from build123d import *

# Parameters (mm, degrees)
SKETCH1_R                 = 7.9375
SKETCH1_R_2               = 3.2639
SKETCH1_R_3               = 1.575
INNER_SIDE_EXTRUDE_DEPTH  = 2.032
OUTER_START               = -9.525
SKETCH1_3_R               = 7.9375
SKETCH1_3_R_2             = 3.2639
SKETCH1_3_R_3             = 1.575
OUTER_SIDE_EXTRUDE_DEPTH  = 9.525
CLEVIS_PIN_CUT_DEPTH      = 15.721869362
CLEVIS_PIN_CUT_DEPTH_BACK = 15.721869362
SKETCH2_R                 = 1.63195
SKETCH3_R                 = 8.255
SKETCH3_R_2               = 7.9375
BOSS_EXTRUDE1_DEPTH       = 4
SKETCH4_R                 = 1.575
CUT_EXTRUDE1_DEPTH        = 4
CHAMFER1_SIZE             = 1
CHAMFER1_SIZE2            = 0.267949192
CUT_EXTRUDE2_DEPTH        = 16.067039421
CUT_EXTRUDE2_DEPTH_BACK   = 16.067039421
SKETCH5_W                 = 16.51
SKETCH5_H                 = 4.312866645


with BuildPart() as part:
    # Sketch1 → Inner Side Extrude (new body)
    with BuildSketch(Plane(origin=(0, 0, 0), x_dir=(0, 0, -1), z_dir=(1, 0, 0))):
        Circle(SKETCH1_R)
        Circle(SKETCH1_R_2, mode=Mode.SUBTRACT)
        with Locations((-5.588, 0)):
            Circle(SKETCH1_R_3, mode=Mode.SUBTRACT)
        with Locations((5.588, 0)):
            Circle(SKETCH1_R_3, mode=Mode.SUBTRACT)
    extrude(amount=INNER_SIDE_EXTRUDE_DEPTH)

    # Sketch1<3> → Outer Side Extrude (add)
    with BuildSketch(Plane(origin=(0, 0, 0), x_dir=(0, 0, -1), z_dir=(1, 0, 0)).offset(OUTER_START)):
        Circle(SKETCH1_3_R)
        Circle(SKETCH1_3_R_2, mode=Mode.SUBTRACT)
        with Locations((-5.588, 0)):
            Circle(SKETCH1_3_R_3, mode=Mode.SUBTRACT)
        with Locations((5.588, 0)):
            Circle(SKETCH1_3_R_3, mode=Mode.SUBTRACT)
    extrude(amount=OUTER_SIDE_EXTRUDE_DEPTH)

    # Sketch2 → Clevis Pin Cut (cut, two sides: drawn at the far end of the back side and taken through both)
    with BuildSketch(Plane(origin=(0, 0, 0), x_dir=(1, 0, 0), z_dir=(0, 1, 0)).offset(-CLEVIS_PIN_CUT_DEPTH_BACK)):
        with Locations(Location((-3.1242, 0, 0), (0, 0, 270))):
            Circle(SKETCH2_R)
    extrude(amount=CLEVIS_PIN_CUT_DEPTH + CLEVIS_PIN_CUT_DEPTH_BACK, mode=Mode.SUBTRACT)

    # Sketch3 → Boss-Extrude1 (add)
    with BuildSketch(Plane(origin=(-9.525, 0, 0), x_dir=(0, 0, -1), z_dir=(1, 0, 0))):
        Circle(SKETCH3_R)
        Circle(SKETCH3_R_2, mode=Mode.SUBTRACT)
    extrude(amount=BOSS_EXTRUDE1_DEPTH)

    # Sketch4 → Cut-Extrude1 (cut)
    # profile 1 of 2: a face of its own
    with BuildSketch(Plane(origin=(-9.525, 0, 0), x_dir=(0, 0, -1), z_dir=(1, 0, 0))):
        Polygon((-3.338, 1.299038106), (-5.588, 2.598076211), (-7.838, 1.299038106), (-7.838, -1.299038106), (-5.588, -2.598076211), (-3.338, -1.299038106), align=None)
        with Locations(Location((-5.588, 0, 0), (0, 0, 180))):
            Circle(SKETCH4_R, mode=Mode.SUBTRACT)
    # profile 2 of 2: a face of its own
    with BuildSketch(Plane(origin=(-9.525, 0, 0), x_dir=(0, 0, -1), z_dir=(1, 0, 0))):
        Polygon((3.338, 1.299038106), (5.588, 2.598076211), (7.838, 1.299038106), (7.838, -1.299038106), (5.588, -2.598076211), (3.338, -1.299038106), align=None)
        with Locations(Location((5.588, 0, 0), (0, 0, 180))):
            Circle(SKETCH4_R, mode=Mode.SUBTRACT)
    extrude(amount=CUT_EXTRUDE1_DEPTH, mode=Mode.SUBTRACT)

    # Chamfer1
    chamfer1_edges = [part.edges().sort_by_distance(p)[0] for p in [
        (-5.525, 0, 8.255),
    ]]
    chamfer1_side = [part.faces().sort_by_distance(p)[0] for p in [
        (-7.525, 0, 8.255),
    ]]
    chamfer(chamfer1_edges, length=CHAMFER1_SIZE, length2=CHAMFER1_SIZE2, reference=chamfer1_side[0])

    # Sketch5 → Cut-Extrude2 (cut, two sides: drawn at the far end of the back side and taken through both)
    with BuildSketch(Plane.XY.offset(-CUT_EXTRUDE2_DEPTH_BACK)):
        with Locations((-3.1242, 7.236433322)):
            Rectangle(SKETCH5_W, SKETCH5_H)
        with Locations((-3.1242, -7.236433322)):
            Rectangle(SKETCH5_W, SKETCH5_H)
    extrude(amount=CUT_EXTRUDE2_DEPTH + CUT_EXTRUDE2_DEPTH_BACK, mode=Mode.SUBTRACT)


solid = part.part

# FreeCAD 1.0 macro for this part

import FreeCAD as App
import Part
import Sketcher
Q = App.Units.Quantity


def edges_at(feature, points):
    """Names of the edges that pass closest to the given points."""
    edges = feature.Shape.Edges
    near = lambda p: min(range(len(edges)), key=lambda i: edges[i].distToShape(Part.Vertex(*p))[0])
    return sorted({f"Edge{near(p) + 1}" for p in points})

doc = App.newDocument("Part")
body = doc.addObject("PartDesign::Body", "Body")

# Sketch on YZ plane
sketch1 = doc.addObject("Sketcher::SketchObject", "Sketch")
body.addObject(sketch1)
sketch1.AttachmentSupport = (doc.YZ_Plane, [""])
sketch1.MapMode = "FlatFace"
sketch1.addGeometry(Part.Circle(App.Vector(0, 0, 0), App.Vector(0, 0, 1), 7.9), False)
sketch1.addGeometry(Part.Circle(App.Vector(0, 5.6, 0), App.Vector(0, 0, 1), 1.6), False)
sketch1.addGeometry(Part.Circle(App.Vector(0, 0, 0), App.Vector(0, 0, 1), 3.3), False)
sketch1.addGeometry(Part.Circle(App.Vector(0, -5.6, 0), App.Vector(0, 0, 1), 1.6), False)
sketch1.addConstraint(Sketcher.Constraint("Coincident", 0, 3, -1, 1))
sketch1.addConstraint(Sketcher.Constraint("Coincident", 2, 3, -1, 1))
sketch1.addConstraint(Sketcher.Constraint("Equal", 1, 3))
sketch1.addConstraint(Sketcher.Constraint("Symmetric", 1, 3, 3, 3, -1, 1))
sketch1.addConstraint(Sketcher.Constraint("PointOnObject", 1, 3, -2))
sketch1.addConstraint(Sketcher.Constraint("Diameter", 0, Q("0.625 in")))
sketch1.addConstraint(Sketcher.Constraint("Diameter", 2, Q("0.257 in")))
sketch1.addConstraint(Sketcher.Constraint("Diameter", 1, Q("3.15 mm")))
sketch1.addConstraint(Sketcher.Constraint("DistanceY", -1, 1, 1, 3, Q("0.22 in")))
pad1 = doc.addObject("PartDesign::Pad", "Pad")
body.addObject(pad1)
pad1.Profile = sketch1
pad1.Length = Q("0.08 in")

# Sketch on YZ plane
sketch2 = doc.addObject("Sketcher::SketchObject", "Sketch001")
body.addObject(sketch2)
sketch2.AttachmentSupport = (doc.YZ_Plane, [""])
sketch2.MapMode = "FlatFace"
sketch2.AttachmentOffset = App.Placement(App.Vector(0, 0, -0.375 * 25.4), App.Rotation())
sketch2.addGeometry(Part.Circle(App.Vector(0, 0, 0), App.Vector(0, 0, 1), 7.9), False)
sketch2.addGeometry(Part.Circle(App.Vector(0, 5.6, 0), App.Vector(0, 0, 1), 1.6), False)
sketch2.addGeometry(Part.Circle(App.Vector(0, 0, 0), App.Vector(0, 0, 1), 3.3), False)
sketch2.addGeometry(Part.Circle(App.Vector(0, -5.6, 0), App.Vector(0, 0, 1), 1.6), False)
sketch2.addConstraint(Sketcher.Constraint("Coincident", 0, 3, -1, 1))
sketch2.addConstraint(Sketcher.Constraint("Coincident", 2, 3, -1, 1))
sketch2.addConstraint(Sketcher.Constraint("Equal", 1, 3))
sketch2.addConstraint(Sketcher.Constraint("Symmetric", 1, 3, 3, 3, -1, 1))
sketch2.addConstraint(Sketcher.Constraint("PointOnObject", 1, 3, -2))
sketch2.addConstraint(Sketcher.Constraint("Diameter", 0, Q("0.625 in")))
sketch2.addConstraint(Sketcher.Constraint("Diameter", 2, Q("0.257 in")))
sketch2.addConstraint(Sketcher.Constraint("Diameter", 1, Q("3.15 mm")))
sketch2.addConstraint(Sketcher.Constraint("DistanceY", -1, 1, 1, 3, Q("0.22 in")))
pad2 = doc.addObject("PartDesign::Pad", "Pad001")
body.addObject(pad2)
pad2.Profile = sketch2
pad2.Length = Q("0.375 in")

# Sketch on XZ plane
sketch3 = doc.addObject("Sketcher::SketchObject", "Sketch002")
body.addObject(sketch3)
sketch3.AttachmentSupport = (doc.XZ_Plane, [""])
sketch3.MapMode = "FlatFace"
sketch3.addGeometry(Part.Circle(App.Vector(-3.1, 0, 0), App.Vector(0, 0, 1), 1.6), False)
sketch3.addConstraint(Sketcher.Constraint("PointOnObject", 0, 3, -1))
sketch3.addConstraint(Sketcher.Constraint("Diameter", 0, Q("0.1285 in")))
sketch3.addConstraint(Sketcher.Constraint("DistanceX", 0, 3, -1, 1, Q("0.123 in")))
pocket1 = doc.addObject("PartDesign::Pocket", "Pocket")
body.addObject(pocket1)
pocket1.Profile = sketch3
pocket1.Type = "ThroughAll"
pocket1.Midplane = True

# Sketch on YZ plane
sketch4 = doc.addObject("Sketcher::SketchObject", "Sketch003")
body.addObject(sketch4)
sketch4.AttachmentSupport = (doc.YZ_Plane, [""])
sketch4.MapMode = "FlatFace"
sketch4.AttachmentOffset = App.Placement(App.Vector(0, 0, -0.375 * 25.4), App.Rotation())
sketch4.addGeometry(Part.Circle(App.Vector(0, 0, 0), App.Vector(0, 0, 1), 8), False)
sketch4.addGeometry(Part.Circle(App.Vector(0, 0, 0), App.Vector(0, 0, 1), 8), False)
sketch4.addConstraint(Sketcher.Constraint("Coincident", 0, 3, -1, 1))
sketch4.addConstraint(Sketcher.Constraint("Coincident", 1, 3, -1, 1))
sketch4.addConstraint(Sketcher.Constraint("Diameter", 0, Q("0.65 in")))
sketch4.addConstraint(Sketcher.Constraint("Diameter", 1, Q("0.625 in")))
pad3 = doc.addObject("PartDesign::Pad", "Pad002")
body.addObject(pad3)
pad3.Profile = sketch4
pad3.Length = 4

# Sketch on YZ plane
sketch5 = doc.addObject("Sketcher::SketchObject", "Sketch004")
body.addObject(sketch5)
sketch5.AttachmentSupport = (doc.YZ_Plane, [""])
sketch5.MapMode = "FlatFace"
sketch5.AttachmentOffset = App.Placement(App.Vector(0, 0, -0.375 * 25.4), App.Rotation())
sketch5.addGeometry(Part.LineSegment(App.Vector(1.3, 3.3, 0), App.Vector(2.6, 5.6, 0)), False)
sketch5.addGeometry(Part.LineSegment(App.Vector(2.6, 5.6, 0), App.Vector(1.3, 7.8, 0)), False)
sketch5.addGeometry(Part.LineSegment(App.Vector(1.3, 7.8, 0), App.Vector(-1.3, 7.8, 0)), False)
sketch5.addGeometry(Part.LineSegment(App.Vector(-1.3, 7.8, 0), App.Vector(-2.6, 5.6, 0)), False)
sketch5.addGeometry(Part.LineSegment(App.Vector(-2.6, 5.6, 0), App.Vector(-1.3, 3.3, 0)), False)
sketch5.addGeometry(Part.LineSegment(App.Vector(-1.3, 3.3, 0), App.Vector(1.3, 3.3, 0)), False)
sketch5.addGeometry(Part.Circle(App.Vector(0, 5.6, 0), App.Vector(0, 0, 1), 1.6), False)
sketch5.addGeometry(Part.LineSegment(App.Vector(2.6, -5.6, 0), App.Vector(1.3, -3.3, 0)), False)
sketch5.addGeometry(Part.LineSegment(App.Vector(1.3, -3.3, 0), App.Vector(-1.3, -3.3, 0)), False)
sketch5.addGeometry(Part.LineSegment(App.Vector(-1.3, -3.3, 0), App.Vector(-2.6, -5.6, 0)), False)
sketch5.addGeometry(Part.LineSegment(App.Vector(-2.6, -5.6, 0), App.Vector(-1.3, -7.8, 0)), False)
sketch5.addGeometry(Part.LineSegment(App.Vector(-1.3, -7.8, 0), App.Vector(1.3, -7.8, 0)), False)
sketch5.addGeometry(Part.LineSegment(App.Vector(1.3, -7.8, 0), App.Vector(2.6, -5.6, 0)), False)
sketch5.addGeometry(Part.Circle(App.Vector(0, -5.6, 0), App.Vector(0, 0, 1), 1.6), False)
sketch5.addConstraint(Sketcher.Constraint("Coincident", 0, 2, 1, 1))
sketch5.addConstraint(Sketcher.Constraint("Coincident", 1, 2, 2, 1))
sketch5.addConstraint(Sketcher.Constraint("Coincident", 2, 2, 3, 1))
sketch5.addConstraint(Sketcher.Constraint("Coincident", 3, 2, 4, 1))
sketch5.addConstraint(Sketcher.Constraint("Coincident", 4, 2, 5, 1))
sketch5.addConstraint(Sketcher.Constraint("Coincident", 5, 2, 0, 1))
sketch5.addConstraint(Sketcher.Constraint("Coincident", 7, 2, 8, 1))
sketch5.addConstraint(Sketcher.Constraint("Coincident", 8, 2, 9, 1))
sketch5.addConstraint(Sketcher.Constraint("Coincident", 9, 2, 10, 1))
sketch5.addConstraint(Sketcher.Constraint("Coincident", 10, 2, 11, 1))
sketch5.addConstraint(Sketcher.Constraint("Coincident", 11, 2, 12, 1))
sketch5.addConstraint(Sketcher.Constraint("Coincident", 12, 2, 7, 1))
sketch5.addConstraint(Sketcher.Constraint("Horizontal", 2))
sketch5.addConstraint(Sketcher.Constraint("Horizontal", 5))
sketch5.addConstraint(Sketcher.Constraint("Horizontal", 8))
sketch5.addConstraint(Sketcher.Constraint("Horizontal", 11))
sketch5.addConstraint(Sketcher.Constraint("Equal", 6, 13))
sketch5.addConstraint(Sketcher.Constraint("Symmetric", 6, 3, 13, 3, -1, 1))
sketch5.addConstraint(Sketcher.Constraint("Symmetric", 4, 2, 7, 2, -1, 1))
sketch5.addConstraint(Sketcher.Constraint("Symmetric", 0, 2, 9, 2, -1, 1))
sketch5.addConstraint(Sketcher.Constraint("Symmetric", 1, 2, 10, 2, -1, 1))
sketch5.addConstraint(Sketcher.Constraint("Symmetric", 3, 2, 12, 2, -1, 1))
sketch5.addConstraint(Sketcher.Constraint("Symmetric", 0, 2, 3, 2, -2))
sketch5.addConstraint(Sketcher.Constraint("PointOnObject", 6, 3, -2))
sketch5.addConstraint(Sketcher.Constraint("Parallel", 0, 3))
sketch5.addConstraint(Sketcher.Constraint("Parallel", 1, 4))
sketch5.addConstraint(Sketcher.Constraint("Parallel", 3, 9))
sketch5.addConstraint(Sketcher.Constraint("Parallel", 9, 12))
sketch5.addConstraint(Sketcher.Constraint("Horizontal", 6, 3, 0, 2))
sketch5.addConstraint(Sketcher.Constraint("Vertical", 2, 2, 4, 2))
sketch5.addConstraint(Sketcher.Constraint("Vertical", 1, 2, 5, 2))
sketch5.addConstraint(Sketcher.Constraint("Angle", 0, Q("60 deg")))
sketch5.addConstraint(Sketcher.Constraint("Diameter", 6, Q("3.15 mm")))
sketch5.addConstraint(Sketcher.Constraint("DistanceY", -1, 1, 6, 3, Q("0.22 in")))
sketch5.addConstraint(Sketcher.Constraint("DistanceY", -1, 1, 1, 2, Q("7.838 mm")))
sketch5.addConstraint(Sketcher.Constraint("DistanceX", 2, 2, 2, 1, Q("2.598076 mm")))
pocket2 = doc.addObject("PartDesign::Pocket", "Pocket001")
body.addObject(pocket2)
pocket2.Profile = sketch5
pocket2.Length = 4
pocket2.Reversed = True
doc.recompute()

chamfer = doc.addObject("PartDesign::Chamfer", "Chamfer")
body.addObject(chamfer)
chamfer.Base = (pocket2, edges_at(pocket2, [(-5.525, 0, 8.255)]))
chamfer.ChamferType = "Two distances"
chamfer.Size = 1
chamfer.Size2 = 0.267949

# Sketch on XY plane
sketch6 = doc.addObject("Sketcher::SketchObject", "Sketch005")
body.addObject(sketch6)
sketch6.AttachmentSupport = (doc.XY_Plane, [""])
sketch6.MapMode = "FlatFace"
sketch6.addGeometry(Part.LineSegment(App.Vector(-11.4, 9.4, 0), App.Vector(-11.4, 5.1, 0)), False)
sketch6.addGeometry(Part.LineSegment(App.Vector(-11.4, 5.1, 0), App.Vector(5.1, 5.1, 0)), False)
sketch6.addGeometry(Part.LineSegment(App.Vector(5.1, 5.1, 0), App.Vector(5.1, 9.4, 0)), False)
sketch6.addGeometry(Part.LineSegment(App.Vector(5.1, 9.4, 0), App.Vector(-11.4, 9.4, 0)), False)
sketch6.addGeometry(Part.LineSegment(App.Vector(-11.4, -5.1, 0), App.Vector(-11.4, -9.4, 0)), False)
sketch6.addGeometry(Part.LineSegment(App.Vector(-11.4, -9.4, 0), App.Vector(5.1, -9.4, 0)), False)
sketch6.addGeometry(Part.LineSegment(App.Vector(5.1, -9.4, 0), App.Vector(5.1, -5.1, 0)), False)
sketch6.addGeometry(Part.LineSegment(App.Vector(5.1, -5.1, 0), App.Vector(-11.4, -5.1, 0)), False)
sketch6.addConstraint(Sketcher.Constraint("Coincident", 0, 2, 1, 1))
sketch6.addConstraint(Sketcher.Constraint("Coincident", 1, 2, 2, 1))
sketch6.addConstraint(Sketcher.Constraint("Coincident", 2, 2, 3, 1))
sketch6.addConstraint(Sketcher.Constraint("Coincident", 3, 2, 0, 1))
sketch6.addConstraint(Sketcher.Constraint("Coincident", 4, 2, 5, 1))
sketch6.addConstraint(Sketcher.Constraint("Coincident", 5, 2, 6, 1))
sketch6.addConstraint(Sketcher.Constraint("Coincident", 6, 2, 7, 1))
sketch6.addConstraint(Sketcher.Constraint("Coincident", 7, 2, 4, 1))
sketch6.addConstraint(Sketcher.Constraint("Vertical", 0))
sketch6.addConstraint(Sketcher.Constraint("Horizontal", 1))
sketch6.addConstraint(Sketcher.Constraint("Vertical", 2))
sketch6.addConstraint(Sketcher.Constraint("Horizontal", 3))
sketch6.addConstraint(Sketcher.Constraint("Vertical", 4))
sketch6.addConstraint(Sketcher.Constraint("Horizontal", 5))
sketch6.addConstraint(Sketcher.Constraint("Vertical", 6))
sketch6.addConstraint(Sketcher.Constraint("Horizontal", 7))
sketch6.addConstraint(Sketcher.Constraint("Symmetric", 3, 2, 4, 2, -1))
sketch6.addConstraint(Sketcher.Constraint("Symmetric", 1, 2, 6, 2, -1))
sketch6.addConstraint(Sketcher.Constraint("DistanceX", 1, 1, 1, 2, Q("0.65 in")))
sketch6.addConstraint(Sketcher.Constraint("DistanceY", -1, 1, 0, 2, Q("0.2 in")))
sketch6.addConstraint(Sketcher.Constraint("DistanceX", 0, 2, -1, 1, Q("0.448 in")))
sketch6.addConstraint(Sketcher.Constraint("DistanceY", 0, 2, 0, 1, Q("4.312867 mm")))
pocket3 = doc.addObject("PartDesign::Pocket", "Pocket002")
body.addObject(pocket3)
pocket3.Profile = sketch6
pocket3.Type = "ThroughAll"
pocket3.Midplane = True

doc.recompute()
